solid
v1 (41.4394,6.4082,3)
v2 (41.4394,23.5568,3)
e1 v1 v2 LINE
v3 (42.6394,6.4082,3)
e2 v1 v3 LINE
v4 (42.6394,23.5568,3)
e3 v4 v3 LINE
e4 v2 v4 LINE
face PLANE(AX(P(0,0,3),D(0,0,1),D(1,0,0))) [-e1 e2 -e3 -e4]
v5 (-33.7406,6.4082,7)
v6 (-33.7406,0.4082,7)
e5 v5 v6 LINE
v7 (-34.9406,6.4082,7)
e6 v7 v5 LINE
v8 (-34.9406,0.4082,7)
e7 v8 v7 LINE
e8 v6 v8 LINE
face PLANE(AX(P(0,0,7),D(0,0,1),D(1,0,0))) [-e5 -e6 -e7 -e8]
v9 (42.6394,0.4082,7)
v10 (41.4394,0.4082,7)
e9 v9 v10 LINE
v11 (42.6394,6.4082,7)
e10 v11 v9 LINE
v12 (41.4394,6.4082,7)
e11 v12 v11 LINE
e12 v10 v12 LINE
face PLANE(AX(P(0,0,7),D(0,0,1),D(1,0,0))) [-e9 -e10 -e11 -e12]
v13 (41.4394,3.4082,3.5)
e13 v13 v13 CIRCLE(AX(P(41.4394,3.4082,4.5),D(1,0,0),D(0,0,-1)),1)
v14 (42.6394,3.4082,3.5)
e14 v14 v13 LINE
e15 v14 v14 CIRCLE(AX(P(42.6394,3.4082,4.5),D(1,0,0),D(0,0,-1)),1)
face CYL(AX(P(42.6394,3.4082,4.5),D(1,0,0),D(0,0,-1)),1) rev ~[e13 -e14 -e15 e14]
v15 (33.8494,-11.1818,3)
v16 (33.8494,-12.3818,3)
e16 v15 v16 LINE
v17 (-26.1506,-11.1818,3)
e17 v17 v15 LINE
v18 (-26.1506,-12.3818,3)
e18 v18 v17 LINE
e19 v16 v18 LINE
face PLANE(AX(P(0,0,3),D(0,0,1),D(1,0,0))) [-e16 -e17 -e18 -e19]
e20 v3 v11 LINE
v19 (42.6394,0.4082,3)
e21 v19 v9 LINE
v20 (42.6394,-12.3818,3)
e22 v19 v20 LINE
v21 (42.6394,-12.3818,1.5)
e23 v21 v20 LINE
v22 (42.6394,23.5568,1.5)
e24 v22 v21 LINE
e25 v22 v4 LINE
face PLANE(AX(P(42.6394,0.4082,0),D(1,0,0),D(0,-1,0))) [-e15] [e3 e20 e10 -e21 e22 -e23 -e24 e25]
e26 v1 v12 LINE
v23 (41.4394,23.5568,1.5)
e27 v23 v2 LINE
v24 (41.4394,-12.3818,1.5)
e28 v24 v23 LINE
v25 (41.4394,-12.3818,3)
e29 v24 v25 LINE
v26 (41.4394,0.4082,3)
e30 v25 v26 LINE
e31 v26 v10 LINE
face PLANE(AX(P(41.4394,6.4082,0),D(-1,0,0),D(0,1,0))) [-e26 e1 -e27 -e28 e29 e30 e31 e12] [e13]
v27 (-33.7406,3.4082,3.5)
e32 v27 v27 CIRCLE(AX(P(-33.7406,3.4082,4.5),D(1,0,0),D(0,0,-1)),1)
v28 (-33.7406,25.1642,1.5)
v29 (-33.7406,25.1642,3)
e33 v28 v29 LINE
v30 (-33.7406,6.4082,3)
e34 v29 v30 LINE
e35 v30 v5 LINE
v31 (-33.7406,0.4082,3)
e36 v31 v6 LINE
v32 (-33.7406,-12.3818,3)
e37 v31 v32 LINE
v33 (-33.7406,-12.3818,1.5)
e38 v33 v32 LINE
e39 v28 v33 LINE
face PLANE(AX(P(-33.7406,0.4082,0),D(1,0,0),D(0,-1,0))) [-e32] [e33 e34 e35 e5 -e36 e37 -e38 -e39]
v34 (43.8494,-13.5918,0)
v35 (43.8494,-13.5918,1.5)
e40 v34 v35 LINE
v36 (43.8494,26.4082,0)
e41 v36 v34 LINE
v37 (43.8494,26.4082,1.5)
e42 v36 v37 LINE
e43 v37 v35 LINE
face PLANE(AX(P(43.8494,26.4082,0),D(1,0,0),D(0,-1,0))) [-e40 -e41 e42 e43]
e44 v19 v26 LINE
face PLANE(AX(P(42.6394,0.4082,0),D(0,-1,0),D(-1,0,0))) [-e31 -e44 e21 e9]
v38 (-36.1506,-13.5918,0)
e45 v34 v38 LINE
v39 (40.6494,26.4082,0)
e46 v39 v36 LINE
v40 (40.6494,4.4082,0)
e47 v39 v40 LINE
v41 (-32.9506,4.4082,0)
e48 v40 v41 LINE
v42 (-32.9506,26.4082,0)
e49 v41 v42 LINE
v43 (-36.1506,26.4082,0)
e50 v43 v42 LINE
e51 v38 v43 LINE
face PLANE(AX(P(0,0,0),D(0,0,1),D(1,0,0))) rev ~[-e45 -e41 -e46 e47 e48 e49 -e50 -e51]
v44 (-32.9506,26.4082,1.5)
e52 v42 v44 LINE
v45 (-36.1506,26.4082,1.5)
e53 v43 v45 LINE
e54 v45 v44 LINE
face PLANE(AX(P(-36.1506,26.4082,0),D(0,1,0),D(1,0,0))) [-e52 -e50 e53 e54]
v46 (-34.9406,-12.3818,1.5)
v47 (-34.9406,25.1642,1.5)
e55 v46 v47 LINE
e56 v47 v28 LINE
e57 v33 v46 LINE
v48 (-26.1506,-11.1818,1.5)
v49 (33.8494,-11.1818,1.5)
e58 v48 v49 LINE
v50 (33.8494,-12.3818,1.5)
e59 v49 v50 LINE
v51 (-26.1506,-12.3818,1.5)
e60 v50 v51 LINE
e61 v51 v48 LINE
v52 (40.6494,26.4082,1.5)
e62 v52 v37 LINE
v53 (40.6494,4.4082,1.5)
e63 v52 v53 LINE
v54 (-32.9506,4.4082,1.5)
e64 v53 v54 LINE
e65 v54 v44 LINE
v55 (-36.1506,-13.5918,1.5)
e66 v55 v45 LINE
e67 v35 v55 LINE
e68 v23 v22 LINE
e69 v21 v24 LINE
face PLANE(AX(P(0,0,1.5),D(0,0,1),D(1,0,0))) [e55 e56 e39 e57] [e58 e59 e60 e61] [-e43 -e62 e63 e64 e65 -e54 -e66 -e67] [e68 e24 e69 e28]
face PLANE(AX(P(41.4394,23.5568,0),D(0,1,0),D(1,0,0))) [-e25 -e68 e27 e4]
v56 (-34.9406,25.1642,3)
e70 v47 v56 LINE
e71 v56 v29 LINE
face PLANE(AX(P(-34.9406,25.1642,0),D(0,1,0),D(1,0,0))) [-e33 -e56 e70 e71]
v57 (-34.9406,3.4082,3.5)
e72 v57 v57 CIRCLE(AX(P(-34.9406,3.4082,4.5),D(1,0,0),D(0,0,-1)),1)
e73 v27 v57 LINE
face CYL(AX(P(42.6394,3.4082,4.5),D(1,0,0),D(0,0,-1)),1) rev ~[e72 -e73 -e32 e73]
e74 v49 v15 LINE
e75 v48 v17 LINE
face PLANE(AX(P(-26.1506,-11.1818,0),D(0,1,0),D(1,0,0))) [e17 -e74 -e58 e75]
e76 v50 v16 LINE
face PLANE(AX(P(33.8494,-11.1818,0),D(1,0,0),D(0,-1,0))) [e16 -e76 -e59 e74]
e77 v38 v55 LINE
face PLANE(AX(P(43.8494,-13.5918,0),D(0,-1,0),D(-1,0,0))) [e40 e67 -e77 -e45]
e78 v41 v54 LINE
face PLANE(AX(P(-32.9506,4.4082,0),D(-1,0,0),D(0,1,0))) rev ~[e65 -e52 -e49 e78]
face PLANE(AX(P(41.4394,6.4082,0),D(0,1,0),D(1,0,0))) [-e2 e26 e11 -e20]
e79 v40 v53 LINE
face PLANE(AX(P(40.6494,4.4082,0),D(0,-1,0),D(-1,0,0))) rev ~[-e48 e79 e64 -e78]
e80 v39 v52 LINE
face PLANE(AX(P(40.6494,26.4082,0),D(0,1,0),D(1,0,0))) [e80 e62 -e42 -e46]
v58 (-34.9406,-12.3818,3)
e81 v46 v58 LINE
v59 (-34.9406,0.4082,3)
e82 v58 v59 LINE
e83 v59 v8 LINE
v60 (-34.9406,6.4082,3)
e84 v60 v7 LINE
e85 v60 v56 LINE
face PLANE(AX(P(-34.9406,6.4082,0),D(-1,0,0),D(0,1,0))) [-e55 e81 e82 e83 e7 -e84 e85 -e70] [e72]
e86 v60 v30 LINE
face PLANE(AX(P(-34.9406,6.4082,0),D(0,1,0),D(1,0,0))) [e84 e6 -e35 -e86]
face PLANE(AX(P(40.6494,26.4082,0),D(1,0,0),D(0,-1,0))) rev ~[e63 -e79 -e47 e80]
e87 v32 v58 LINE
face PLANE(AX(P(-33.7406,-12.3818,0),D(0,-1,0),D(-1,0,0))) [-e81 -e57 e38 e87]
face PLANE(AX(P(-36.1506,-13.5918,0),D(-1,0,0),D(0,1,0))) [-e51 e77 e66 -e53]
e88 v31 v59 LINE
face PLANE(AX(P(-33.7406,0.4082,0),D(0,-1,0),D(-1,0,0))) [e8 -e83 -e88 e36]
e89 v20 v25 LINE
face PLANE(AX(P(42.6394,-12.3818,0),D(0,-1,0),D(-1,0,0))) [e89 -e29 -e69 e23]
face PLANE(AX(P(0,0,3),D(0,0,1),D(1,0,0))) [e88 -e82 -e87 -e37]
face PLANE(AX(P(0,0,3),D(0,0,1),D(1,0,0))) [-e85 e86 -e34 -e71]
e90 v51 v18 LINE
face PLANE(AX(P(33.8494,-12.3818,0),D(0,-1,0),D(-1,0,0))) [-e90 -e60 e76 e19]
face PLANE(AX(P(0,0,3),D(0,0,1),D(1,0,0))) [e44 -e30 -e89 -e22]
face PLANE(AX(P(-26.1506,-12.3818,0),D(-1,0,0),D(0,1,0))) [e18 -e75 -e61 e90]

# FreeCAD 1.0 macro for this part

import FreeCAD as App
import Part
import Sketcher
Q = App.Units.Quantity


def add_polygon(sketch, points):
    """Adds a closed chain of lines whose ends are joined by coincident constraints."""
    first, n = sketch.GeometryCount, len(points)
    for a, b in zip(points, points[1:] + points[:1]):
        sketch.addGeometry(Part.LineSegment(App.Vector(*a, 0), App.Vector(*b, 0)), False)
    for i in range(n):
        sketch.addConstraint(Sketcher.Constraint("Coincident", first + i, 2, first + (i + 1) % n, 1))

doc = App.newDocument("Part")
body = doc.addObject("PartDesign::Body", "Body")

# Sketch on XY plane
sketch1 = doc.addObject("Sketcher::SketchObject", "Sketch")
body.addObject(sketch1)
sketch1.AttachmentSupport = (doc.XY_Plane, [""])
sketch1.MapMode = "FlatFace"
add_polygon(sketch1, [(-33, 26.4), (-36.2, 26.4), (-36.2, -13.6), (43.8, -13.6), (43.8, 26.4), (40.6, 26.4), (40.6, 4.4), (-33, 4.4)])  # lines 0-7
add_polygon(sketch1, [(-34.9, -12.4), (-34.9, 25.2), (-33.7, 25.2), (-33.7, -12.4)])  # lines 8-11
add_polygon(sketch1, [(-26.2, -12.4), (-26.2, -11.2), (33.8, -11.2), (33.8, -12.4)])  # lines 12-15
add_polygon(sketch1, [(41.4, -12.4), (41.4, 23.6), (42.6, 23.6), (42.6, -12.4)])  # lines 16-19
sketch1.addConstraint(Sketcher.Constraint("Horizontal", 0))
sketch1.addConstraint(Sketcher.Constraint("Vertical", 1))
sketch1.addConstraint(Sketcher.Constraint("Horizontal", 2))
sketch1.addConstraint(Sketcher.Constraint("Vertical", 3))
sketch1.addConstraint(Sketcher.Constraint("Horizontal", 4))
sketch1.addConstraint(Sketcher.Constraint("Vertical", 5))
sketch1.addConstraint(Sketcher.Constraint("Horizontal", 6))
sketch1.addConstraint(Sketcher.Constraint("Vertical", 7))
sketch1.addConstraint(Sketcher.Constraint("Vertical", 8))
sketch1.addConstraint(Sketcher.Constraint("Horizontal", 9))
sketch1.addConstraint(Sketcher.Constraint("Vertical", 10))
sketch1.addConstraint(Sketcher.Constraint("Horizontal", 11))
sketch1.addConstraint(Sketcher.Constraint("Vertical", 12))
sketch1.addConstraint(Sketcher.Constraint("Horizontal", 13))
sketch1.addConstraint(Sketcher.Constraint("Vertical", 14))
sketch1.addConstraint(Sketcher.Constraint("Horizontal", 15))
sketch1.addConstraint(Sketcher.Constraint("Vertical", 16))
sketch1.addConstraint(Sketcher.Constraint("Horizontal", 17))
sketch1.addConstraint(Sketcher.Constraint("Vertical", 18))
sketch1.addConstraint(Sketcher.Constraint("Horizontal", 19))
sketch1.addConstraint(Sketcher.Constraint("Horizontal", 0, 2, 3, 2))
sketch1.addConstraint(Sketcher.Constraint("Horizontal", 11, 2, 14, 2))
sketch1.addConstraint(Sketcher.Constraint("Horizontal", 15, 2, 18, 2))
sketch1.addConstraint(Sketcher.Constraint("Equal", 0, 4))
sketch1.addConstraint(Sketcher.Constraint("Equal", 11, 17))
sketch1.addConstraint(Sketcher.Constraint("Equal", 19, 12))
sketch1.addConstraint(Sketcher.Constraint("DistanceX", 2, 1, 2, 2, Q("80 mm")))
sketch1.addConstraint(Sketcher.Constraint("DistanceY", 1, 2, 1, 1, Q("40 mm")))
sketch1.addConstraint(Sketcher.Constraint("DistanceX", 0, 2, 0, 1, Q("3.2 mm")))
sketch1.addConstraint(Sketcher.Constraint("DistanceX", 9, 1, 9, 2, Q("1.2 mm")))
sketch1.addConstraint(Sketcher.Constraint("DistanceY", 2, 2, 5, 2, Q("18 mm")))
sketch1.addConstraint(Sketcher.Constraint("DistanceX", 1, 2, 12, 2, Q("10 mm")))
sketch1.addConstraint(Sketcher.Constraint("DistanceX", 13, 2, 2, 2, Q("10 mm")))
sketch1.addConstraint(Sketcher.Constraint("DistanceX", 0, 2, 8, 2, Q("1.21 mm")))
sketch1.addConstraint(Sketcher.Constraint("DistanceY", 1, 2, 10, 2, Q("1.21 mm")))
sketch1.addConstraint(Sketcher.Constraint("DistanceX", 17, 2, 3, 2, Q("1.21 mm")))
sketch1.addConstraint(Sketcher.Constraint("DistanceY", 16, 1, 16, 2, Q("35.9386 mm")))
sketch1.addConstraint(Sketcher.Constraint("DistanceY", 8, 1, 8, 2, Q("37.546 mm")))
sketch1.addConstraint(Sketcher.Constraint("DistanceX", 0, 2, -1, 1, Q("36.1506 mm")))
sketch1.addConstraint(Sketcher.Constraint("DistanceY", -1, 1, 0, 2, Q("26.4082 mm")))
pad1 = doc.addObject("PartDesign::Pad", "Pad")
body.addObject(pad1)
pad1.Profile = sketch1
pad1.Length = 1.5

# Sketch on XY plane
sketch2 = doc.addObject("Sketcher::SketchObject", "Sketch001")
body.addObject(sketch2)
sketch2.AttachmentSupport = (doc.XY_Plane, [""])
sketch2.MapMode = "FlatFace"
add_polygon(sketch2, [(-33.7, 25.2), (-34.9, 25.2), (-34.9, 6.4), (-33.7, 6.4)])  # lines 0-3
add_polygon(sketch2, [(-33.7, 0.4), (-34.9, 0.4), (-34.9, -12.4), (-33.7, -12.4)])  # lines 4-7
add_polygon(sketch2, [(42.6, 23.6), (41.4, 23.6), (41.4, 6.4), (42.6, 6.4)])  # lines 8-11
add_polygon(sketch2, [(42.6, 0.4), (41.4, 0.4), (41.4, -12.4), (42.6, -12.4)])  # lines 12-15
add_polygon(sketch2, [(33.8, -11.2), (-26.2, -11.2), (-26.2, -12.4), (33.8, -12.4)])  # lines 16-19
sketch2.addConstraint(Sketcher.Constraint("Horizontal", 0))
sketch2.addConstraint(Sketcher.Constraint("Vertical", 1))
sketch2.addConstraint(Sketcher.Constraint("Horizontal", 2))
sketch2.addConstraint(Sketcher.Constraint("Vertical", 3))
sketch2.addConstraint(Sketcher.Constraint("Horizontal", 4))
sketch2.addConstraint(Sketcher.Constraint("Vertical", 5))
sketch2.addConstraint(Sketcher.Constraint("Horizontal", 6))
sketch2.addConstraint(Sketcher.Constraint("Vertical", 7))
sketch2.addConstraint(Sketcher.Constraint("Horizontal", 8))
sketch2.addConstraint(Sketcher.Constraint("Vertical", 9))
sketch2.addConstraint(Sketcher.Constraint("Horizontal", 10))
sketch2.addConstraint(Sketcher.Constraint("Vertical", 11))
sketch2.addConstraint(Sketcher.Constraint("Horizontal", 12))
sketch2.addConstraint(Sketcher.Constraint("Vertical", 13))
sketch2.addConstraint(Sketcher.Constraint("Horizontal", 14))
sketch2.addConstraint(Sketcher.Constraint("Vertical", 15))
sketch2.addConstraint(Sketcher.Constraint("Horizontal", 16))
sketch2.addConstraint(Sketcher.Constraint("Vertical", 17))
sketch2.addConstraint(Sketcher.Constraint("Horizontal", 18))
sketch2.addConstraint(Sketcher.Constraint("Vertical", 19))
sketch2.addConstraint(Sketcher.Constraint("Horizontal", 2, 2, 9, 2))
sketch2.addConstraint(Sketcher.Constraint("Horizontal", 7, 2, 12, 2))
sketch2.addConstraint(Sketcher.Constraint("Horizontal", 6, 2, 13, 2))
sketch2.addConstraint(Sketcher.Constraint("Horizontal", 14, 2, 17, 2))
sketch2.addConstraint(Sketcher.Constraint("Vertical", 1, 2, 4, 2))
sketch2.addConstraint(Sketcher.Constraint("Vertical", 3, 2, 6, 2))
sketch2.addConstraint(Sketcher.Constraint("Vertical", 9, 2, 12, 2))
sketch2.addConstraint(Sketcher.Constraint("Vertical", 11, 2, 14, 2))
sketch2.addConstraint(Sketcher.Constraint("Equal", 6, 8))
sketch2.addConstraint(Sketcher.Constraint("Equal", 14, 17))
sketch2.addConstraint(Sketcher.Constraint("DistanceX", 0, 2, 0, 1, Q("1.2 mm")))
sketch2.addConstraint(Sketcher.Constraint("DistanceY", 4, 2, 1, 2, Q("6 mm")))
sketch2.addConstraint(Sketcher.Constraint("DistanceX", 16, 2, 16, 1, Q("60 mm")))
sketch2.addConstraint(Sketcher.Constraint("DistanceY", 5, 2, 5, 1, Q("12.79 mm")))
sketch2.addConstraint(Sketcher.Constraint("DistanceY", 13, 2, 8, 2, Q("35.9386 mm")))
sketch2.addConstraint(Sketcher.Constraint("DistanceY", 1, 2, 1, 1, Q("18.756 mm")))
sketch2.addConstraint(Sketcher.Constraint("DistanceX", 3, 2, 8, 2, Q("75.18 mm")))
sketch2.addConstraint(Sketcher.Constraint("DistanceX", 6, 2, 16, 2, Q("7.59 mm")))
sketch2.addConstraint(Sketcher.Constraint("DistanceX", 0, 2, -1, 1, Q("34.9406 mm")))
sketch2.addConstraint(Sketcher.Constraint("DistanceY", -1, 1, 0, 2, Q("25.1642 mm")))
pad2 = doc.addObject("PartDesign::Pad", "Pad001")
body.addObject(pad2)
pad2.Profile = sketch2
pad2.Length = 3

# Sketch on XY plane
sketch3 = doc.addObject("Sketcher::SketchObject", "Sketch002")
body.addObject(sketch3)
sketch3.AttachmentSupport = (doc.XY_Plane, [""])
sketch3.MapMode = "FlatFace"
add_polygon(sketch3, [(-33.7, 6.4), (-34.9, 6.4), (-34.9, 0.4), (-33.7, 0.4)])  # lines 0-3
add_polygon(sketch3, [(42.6, 6.4), (41.4, 6.4), (41.4, 0.4), (42.6, 0.4)])  # lines 4-7
sketch3.addConstraint(Sketcher.Constraint("Horizontal", 0))
sketch3.addConstraint(Sketcher.Constraint("Vertical", 1))
sketch3.addConstraint(Sketcher.Constraint("Horizontal", 2))
sketch3.addConstraint(Sketcher.Constraint("Vertical", 3))
sketch3.addConstraint(Sketcher.Constraint("Horizontal", 4))
sketch3.addConstraint(Sketcher.Constraint("Vertical", 5))
sketch3.addConstraint(Sketcher.Constraint("Horizontal", 6))
sketch3.addConstraint(Sketcher.Constraint("Vertical", 7))
sketch3.addConstraint(Sketcher.Constraint("Horizontal", 3, 2, 4, 2))
sketch3.addConstraint(Sketcher.Constraint("Horizontal", 2, 2, 5, 2))
sketch3.addConstraint(Sketcher.Constraint("Equal", 2, 4))
sketch3.addConstraint(Sketcher.Constraint("DistanceY", 1, 2, 1, 1, Q("6 mm")))
sketch3.addConstraint(Sketcher.Constraint("DistanceX", 0, 2, 0, 1, Q("1.2 mm")))
sketch3.addConstraint(Sketcher.Constraint("DistanceX", 3, 2, 4, 2, Q("75.18 mm")))
sketch3.addConstraint(Sketcher.Constraint("DistanceX", 0, 2, -1, 1, Q("34.9406 mm")))
sketch3.addConstraint(Sketcher.Constraint("DistanceY", -1, 1, 0, 2, Q("6.4082 mm")))
pad3 = doc.addObject("PartDesign::Pad", "Pad002")
body.addObject(pad3)
pad3.Profile = sketch3
pad3.Length = 7

# Sketch on YZ plane
sketch4 = doc.addObject("Sketcher::SketchObject", "Sketch003")
body.addObject(sketch4)
sketch4.AttachmentSupport = (doc.YZ_Plane, [""])
sketch4.MapMode = "FlatFace"
sketch4.AttachmentOffset = App.Placement(App.Vector(0, 0, 42.6394), App.Rotation())
sketch4.addGeometry(Part.Circle(App.Vector(3.4, 4.5, 0), App.Vector(0, 0, 1), 1), False)
sketch4.addConstraint(Sketcher.Constraint("Diameter", 0, Q("2 mm")))
sketch4.addConstraint(Sketcher.Constraint("DistanceY", -1, 1, 0, 3, Q("4.5 mm")))
sketch4.addConstraint(Sketcher.Constraint("DistanceX", -1, 1, 0, 3, Q("3.4082 mm")))
pocket1 = doc.addObject("PartDesign::Pocket", "Pocket")
body.addObject(pocket1)
pocket1.Profile = sketch4
pocket1.Type = "ThroughAll"

doc.recompute()
